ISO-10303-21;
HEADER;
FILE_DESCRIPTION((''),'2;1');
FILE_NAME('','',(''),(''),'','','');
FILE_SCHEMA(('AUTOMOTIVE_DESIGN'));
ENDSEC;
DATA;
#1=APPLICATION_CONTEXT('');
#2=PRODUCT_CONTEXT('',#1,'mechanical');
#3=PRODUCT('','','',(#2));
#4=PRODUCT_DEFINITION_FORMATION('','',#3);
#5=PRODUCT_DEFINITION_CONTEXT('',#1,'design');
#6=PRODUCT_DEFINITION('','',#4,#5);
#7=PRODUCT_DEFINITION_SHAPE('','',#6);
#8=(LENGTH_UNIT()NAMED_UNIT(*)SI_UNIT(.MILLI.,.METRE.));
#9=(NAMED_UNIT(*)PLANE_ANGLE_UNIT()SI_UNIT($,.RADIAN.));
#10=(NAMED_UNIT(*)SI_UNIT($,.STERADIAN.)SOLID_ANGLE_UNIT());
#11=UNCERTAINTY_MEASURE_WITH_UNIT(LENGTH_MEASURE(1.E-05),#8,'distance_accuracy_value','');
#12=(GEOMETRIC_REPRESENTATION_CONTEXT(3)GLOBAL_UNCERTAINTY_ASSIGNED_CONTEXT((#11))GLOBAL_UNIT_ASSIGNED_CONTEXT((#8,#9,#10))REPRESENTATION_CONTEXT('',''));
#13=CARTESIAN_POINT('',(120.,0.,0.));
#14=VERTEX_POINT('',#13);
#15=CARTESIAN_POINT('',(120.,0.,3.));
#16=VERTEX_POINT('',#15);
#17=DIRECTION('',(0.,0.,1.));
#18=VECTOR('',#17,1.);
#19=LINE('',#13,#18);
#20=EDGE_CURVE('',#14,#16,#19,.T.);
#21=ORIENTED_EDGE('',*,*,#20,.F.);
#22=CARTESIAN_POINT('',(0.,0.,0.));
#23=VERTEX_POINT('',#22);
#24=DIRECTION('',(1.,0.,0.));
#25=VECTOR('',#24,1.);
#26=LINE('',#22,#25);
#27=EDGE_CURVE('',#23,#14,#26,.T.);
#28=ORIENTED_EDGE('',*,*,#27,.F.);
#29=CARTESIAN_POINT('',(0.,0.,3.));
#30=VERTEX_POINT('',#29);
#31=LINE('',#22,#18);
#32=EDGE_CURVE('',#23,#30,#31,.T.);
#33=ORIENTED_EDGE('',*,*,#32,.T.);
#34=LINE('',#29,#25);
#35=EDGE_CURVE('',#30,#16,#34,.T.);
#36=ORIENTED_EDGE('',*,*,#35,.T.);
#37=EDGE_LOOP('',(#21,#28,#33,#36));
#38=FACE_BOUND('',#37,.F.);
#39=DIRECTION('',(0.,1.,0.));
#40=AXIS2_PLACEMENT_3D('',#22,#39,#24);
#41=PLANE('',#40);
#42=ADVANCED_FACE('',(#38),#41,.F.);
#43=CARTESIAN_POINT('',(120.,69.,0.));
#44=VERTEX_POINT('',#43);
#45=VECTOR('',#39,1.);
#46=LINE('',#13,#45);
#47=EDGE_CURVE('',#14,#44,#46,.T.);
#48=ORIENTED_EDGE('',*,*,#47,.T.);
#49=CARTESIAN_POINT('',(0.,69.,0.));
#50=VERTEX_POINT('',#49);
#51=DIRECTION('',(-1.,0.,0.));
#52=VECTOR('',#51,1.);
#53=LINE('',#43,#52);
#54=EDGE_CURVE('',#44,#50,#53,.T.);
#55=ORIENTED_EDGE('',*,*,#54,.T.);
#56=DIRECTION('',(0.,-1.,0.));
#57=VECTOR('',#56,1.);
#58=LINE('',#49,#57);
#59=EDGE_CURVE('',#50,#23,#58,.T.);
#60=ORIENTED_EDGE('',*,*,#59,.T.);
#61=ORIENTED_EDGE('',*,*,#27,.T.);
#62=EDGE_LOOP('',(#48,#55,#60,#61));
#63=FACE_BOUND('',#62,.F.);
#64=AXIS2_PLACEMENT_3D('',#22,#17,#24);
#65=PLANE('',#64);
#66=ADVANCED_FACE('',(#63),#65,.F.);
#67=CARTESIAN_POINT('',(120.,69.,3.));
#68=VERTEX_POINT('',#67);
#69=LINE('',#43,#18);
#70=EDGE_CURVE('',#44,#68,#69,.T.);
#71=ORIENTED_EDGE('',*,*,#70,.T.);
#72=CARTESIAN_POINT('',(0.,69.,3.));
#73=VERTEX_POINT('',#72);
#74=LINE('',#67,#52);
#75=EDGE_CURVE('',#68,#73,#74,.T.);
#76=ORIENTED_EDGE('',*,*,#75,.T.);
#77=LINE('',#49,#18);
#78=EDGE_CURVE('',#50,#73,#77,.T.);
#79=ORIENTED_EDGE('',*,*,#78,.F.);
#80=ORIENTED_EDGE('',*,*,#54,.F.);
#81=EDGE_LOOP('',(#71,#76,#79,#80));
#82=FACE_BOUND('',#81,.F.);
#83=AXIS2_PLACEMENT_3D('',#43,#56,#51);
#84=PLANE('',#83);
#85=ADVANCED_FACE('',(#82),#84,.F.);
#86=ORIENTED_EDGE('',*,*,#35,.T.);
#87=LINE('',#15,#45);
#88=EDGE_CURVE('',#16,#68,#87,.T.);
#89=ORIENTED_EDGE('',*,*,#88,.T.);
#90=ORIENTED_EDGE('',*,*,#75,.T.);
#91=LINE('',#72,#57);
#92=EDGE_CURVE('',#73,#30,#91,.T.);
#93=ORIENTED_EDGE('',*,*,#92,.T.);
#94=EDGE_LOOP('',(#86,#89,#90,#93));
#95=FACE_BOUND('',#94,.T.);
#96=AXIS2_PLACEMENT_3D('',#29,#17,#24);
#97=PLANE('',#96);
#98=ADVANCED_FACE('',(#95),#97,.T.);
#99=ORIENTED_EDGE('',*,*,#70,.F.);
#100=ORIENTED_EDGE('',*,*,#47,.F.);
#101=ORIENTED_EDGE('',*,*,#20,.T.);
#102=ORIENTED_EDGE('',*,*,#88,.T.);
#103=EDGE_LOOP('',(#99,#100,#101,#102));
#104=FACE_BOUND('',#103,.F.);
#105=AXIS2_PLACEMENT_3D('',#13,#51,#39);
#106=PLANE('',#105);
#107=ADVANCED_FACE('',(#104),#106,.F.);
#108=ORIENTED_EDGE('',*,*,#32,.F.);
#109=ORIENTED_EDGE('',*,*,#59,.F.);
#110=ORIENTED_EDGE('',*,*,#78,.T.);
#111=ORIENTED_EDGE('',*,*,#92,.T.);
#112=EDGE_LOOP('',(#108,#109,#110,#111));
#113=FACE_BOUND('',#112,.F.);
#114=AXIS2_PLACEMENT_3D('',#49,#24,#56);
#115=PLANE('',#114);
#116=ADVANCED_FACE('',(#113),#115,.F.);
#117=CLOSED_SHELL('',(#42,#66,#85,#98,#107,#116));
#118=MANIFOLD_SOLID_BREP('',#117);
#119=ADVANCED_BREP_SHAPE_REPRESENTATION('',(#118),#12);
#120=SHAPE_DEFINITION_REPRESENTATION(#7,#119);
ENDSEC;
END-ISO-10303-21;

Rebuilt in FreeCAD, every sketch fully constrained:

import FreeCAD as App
import Part
import Sketcher
from FreeCAD import Vector
Q = App.Units.Quantity

doc = App.newDocument("Part")
body = doc.addObject("PartDesign::Body", "Body")

# Sketch on XY plane
sketch1 = body.newObject("Sketcher::SketchObject", "Sketch")
sketch1.AttachmentSupport = (doc.getObject("XY_Plane"), [""])
sketch1.MapMode = "FlatFace"
sketch1.addGeometry(Part.LineSegment(Vector(0, 69, 0), Vector(0, 0, 0)), False)
sketch1.addGeometry(Part.LineSegment(Vector(0, 0, 0), Vector(120, 0, 0)), False)
sketch1.addGeometry(Part.LineSegment(Vector(120, 0, 0), Vector(120, 69, 0)), False)
sketch1.addGeometry(Part.LineSegment(Vector(120, 69, 0), Vector(0, 69, 0)), False)
sketch1.addConstraint(Sketcher.Constraint("Coincident", 0, 2, 1, 1))
sketch1.addConstraint(Sketcher.Constraint("Coincident", 1, 2, 2, 1))
sketch1.addConstraint(Sketcher.Constraint("Coincident", 2, 2, 3, 1))
sketch1.addConstraint(Sketcher.Constraint("Coincident", 3, 2, 0, 1))
sketch1.addConstraint(Sketcher.Constraint("Vertical", 0))
sketch1.addConstraint(Sketcher.Constraint("Horizontal", 1))
sketch1.addConstraint(Sketcher.Constraint("Vertical", 2))
sketch1.addConstraint(Sketcher.Constraint("Horizontal", 3))
sketch1.addConstraint(Sketcher.Constraint("Coincident", 0, 2, -1, 1))
sketch1.addConstraint(Sketcher.Constraint("DistanceX", 1, 1, 1, 2, Q("120 mm")))
sketch1.addConstraint(Sketcher.Constraint("DistanceY", 0, 2, 0, 1, Q("69 mm")))
pad1 = body.newObject("PartDesign::Pad", "Pad")
pad1.Profile = sketch1
pad1.Length = 3

doc.recompute()
